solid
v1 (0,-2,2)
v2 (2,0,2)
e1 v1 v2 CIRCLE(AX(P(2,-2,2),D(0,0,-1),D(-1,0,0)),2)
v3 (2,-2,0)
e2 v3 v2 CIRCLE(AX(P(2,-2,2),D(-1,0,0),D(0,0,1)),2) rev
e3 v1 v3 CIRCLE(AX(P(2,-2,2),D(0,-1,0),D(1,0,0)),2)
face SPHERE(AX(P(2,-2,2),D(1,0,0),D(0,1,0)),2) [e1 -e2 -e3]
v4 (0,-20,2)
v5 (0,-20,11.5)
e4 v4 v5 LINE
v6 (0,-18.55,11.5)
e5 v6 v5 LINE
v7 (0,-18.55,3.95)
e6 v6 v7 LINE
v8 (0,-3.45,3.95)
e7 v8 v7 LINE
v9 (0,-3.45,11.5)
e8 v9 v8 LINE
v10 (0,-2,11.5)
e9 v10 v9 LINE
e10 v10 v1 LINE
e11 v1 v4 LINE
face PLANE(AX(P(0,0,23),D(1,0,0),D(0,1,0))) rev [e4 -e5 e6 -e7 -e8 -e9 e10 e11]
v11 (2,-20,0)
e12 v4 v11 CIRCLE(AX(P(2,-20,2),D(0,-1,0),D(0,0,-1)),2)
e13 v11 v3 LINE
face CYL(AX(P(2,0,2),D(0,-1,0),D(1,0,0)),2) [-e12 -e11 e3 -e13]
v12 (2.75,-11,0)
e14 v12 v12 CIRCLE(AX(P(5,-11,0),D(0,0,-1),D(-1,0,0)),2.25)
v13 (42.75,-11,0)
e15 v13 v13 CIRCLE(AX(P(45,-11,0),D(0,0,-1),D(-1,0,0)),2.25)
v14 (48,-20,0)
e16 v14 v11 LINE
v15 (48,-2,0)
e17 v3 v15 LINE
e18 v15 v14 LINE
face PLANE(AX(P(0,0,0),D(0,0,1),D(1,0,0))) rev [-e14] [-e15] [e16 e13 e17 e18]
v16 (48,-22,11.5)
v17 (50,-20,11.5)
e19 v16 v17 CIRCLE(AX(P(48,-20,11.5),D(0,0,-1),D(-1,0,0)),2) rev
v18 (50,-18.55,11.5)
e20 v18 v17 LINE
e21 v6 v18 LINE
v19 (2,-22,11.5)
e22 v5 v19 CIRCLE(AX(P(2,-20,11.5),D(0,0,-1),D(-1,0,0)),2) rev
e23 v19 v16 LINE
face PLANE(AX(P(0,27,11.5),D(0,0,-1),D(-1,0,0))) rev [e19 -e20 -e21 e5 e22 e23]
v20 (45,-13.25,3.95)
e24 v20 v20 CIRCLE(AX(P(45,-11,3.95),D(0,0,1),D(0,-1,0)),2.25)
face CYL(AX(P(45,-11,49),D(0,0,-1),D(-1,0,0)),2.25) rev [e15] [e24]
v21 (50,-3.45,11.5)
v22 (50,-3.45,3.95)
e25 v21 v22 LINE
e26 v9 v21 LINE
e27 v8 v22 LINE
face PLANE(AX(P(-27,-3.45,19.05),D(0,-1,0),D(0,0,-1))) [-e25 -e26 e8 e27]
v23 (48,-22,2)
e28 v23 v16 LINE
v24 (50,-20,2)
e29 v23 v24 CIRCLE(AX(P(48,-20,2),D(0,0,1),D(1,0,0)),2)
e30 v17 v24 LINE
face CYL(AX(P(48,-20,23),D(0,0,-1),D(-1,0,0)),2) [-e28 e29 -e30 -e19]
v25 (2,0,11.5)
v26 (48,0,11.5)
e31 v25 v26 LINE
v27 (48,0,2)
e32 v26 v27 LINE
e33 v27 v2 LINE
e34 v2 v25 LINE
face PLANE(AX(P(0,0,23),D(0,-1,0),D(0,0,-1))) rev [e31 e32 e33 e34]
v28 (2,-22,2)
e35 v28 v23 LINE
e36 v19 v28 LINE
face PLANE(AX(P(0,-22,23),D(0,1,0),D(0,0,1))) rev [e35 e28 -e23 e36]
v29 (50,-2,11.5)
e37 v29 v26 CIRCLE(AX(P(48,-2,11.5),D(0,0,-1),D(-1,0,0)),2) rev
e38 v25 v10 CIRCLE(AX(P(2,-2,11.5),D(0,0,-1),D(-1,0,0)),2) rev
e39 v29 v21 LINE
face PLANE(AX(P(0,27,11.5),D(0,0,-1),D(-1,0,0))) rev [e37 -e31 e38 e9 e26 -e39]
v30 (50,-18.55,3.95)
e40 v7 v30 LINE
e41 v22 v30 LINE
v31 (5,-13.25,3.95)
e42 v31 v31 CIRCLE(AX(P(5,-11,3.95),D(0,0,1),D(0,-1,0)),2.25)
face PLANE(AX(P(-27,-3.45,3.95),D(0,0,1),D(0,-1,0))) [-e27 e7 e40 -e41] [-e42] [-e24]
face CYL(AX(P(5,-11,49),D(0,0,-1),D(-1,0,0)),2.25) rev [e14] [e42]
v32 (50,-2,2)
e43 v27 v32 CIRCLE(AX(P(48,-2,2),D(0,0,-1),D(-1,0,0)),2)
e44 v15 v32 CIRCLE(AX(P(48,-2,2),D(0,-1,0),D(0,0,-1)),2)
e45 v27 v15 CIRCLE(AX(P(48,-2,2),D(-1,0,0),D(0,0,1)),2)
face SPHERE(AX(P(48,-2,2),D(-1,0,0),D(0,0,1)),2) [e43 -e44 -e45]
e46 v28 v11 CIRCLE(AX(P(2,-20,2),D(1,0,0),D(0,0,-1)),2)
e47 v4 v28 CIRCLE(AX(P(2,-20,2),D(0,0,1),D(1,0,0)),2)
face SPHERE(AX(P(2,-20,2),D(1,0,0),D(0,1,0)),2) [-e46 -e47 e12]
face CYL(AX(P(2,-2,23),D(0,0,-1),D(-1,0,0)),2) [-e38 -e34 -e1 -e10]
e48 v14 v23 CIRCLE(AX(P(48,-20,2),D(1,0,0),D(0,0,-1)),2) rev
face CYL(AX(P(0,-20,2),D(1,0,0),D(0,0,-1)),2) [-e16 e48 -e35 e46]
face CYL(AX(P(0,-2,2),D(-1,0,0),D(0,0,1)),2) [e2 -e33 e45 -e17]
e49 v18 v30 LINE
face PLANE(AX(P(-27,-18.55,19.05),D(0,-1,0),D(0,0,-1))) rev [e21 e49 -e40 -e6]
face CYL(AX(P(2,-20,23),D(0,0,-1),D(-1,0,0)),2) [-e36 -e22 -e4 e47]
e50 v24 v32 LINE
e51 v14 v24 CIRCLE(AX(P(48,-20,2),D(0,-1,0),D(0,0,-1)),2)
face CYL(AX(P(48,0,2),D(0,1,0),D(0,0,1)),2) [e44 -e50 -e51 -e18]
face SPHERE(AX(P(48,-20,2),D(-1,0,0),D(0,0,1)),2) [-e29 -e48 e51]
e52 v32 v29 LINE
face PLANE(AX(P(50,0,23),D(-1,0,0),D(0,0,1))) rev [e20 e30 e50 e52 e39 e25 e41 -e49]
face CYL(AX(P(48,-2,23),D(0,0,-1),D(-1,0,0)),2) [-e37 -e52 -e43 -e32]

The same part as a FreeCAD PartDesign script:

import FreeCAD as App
import Part
import Sketcher

V = App.Vector


def edges_at(feature, points):
    """Names of the edges that pass closest to the given points."""
    edges = feature.Shape.Edges
    near = lambda p: min(range(len(edges)), key=lambda i: edges[i].distToShape(Part.Vertex(*p))[0])
    return sorted({f"Edge{near(p) + 1}" for p in points})

doc = App.newDocument("Part")
body = doc.addObject("PartDesign::Body", "Body")

# Sketch on XY plane
sketch1 = body.newObject("Sketcher::SketchObject", "Sketch")
sketch1.AttachmentSupport = (doc.getObject("XY_Plane"), [""])
sketch1.MapMode = "FlatFace"
sketch1.addGeometry([
    Part.LineSegment(V(0, 0, 0), V(0, -22, 0)),
    Part.LineSegment(V(0, -22, 0), V(50, -22, 0)),
    Part.LineSegment(V(50, -22, 0), V(50, 0, 0)),
    Part.LineSegment(V(50, 0, 0), V(0, 0, 0)),
], False)
sketch1.addConstraint([
    Sketcher.Constraint("Coincident", 0, 2, 1, 1),
    Sketcher.Constraint("Coincident", 1, 2, 2, 1),
    Sketcher.Constraint("Coincident", 2, 2, 3, 1),
    Sketcher.Constraint("Coincident", 3, 2, 0, 1),
    Sketcher.Constraint("Vertical", 0),
    Sketcher.Constraint("Horizontal", 1),
    Sketcher.Constraint("Vertical", 2),
    Sketcher.Constraint("Horizontal", 3),
    Sketcher.Constraint("Coincident", 3, 2, -1, 1),
    Sketcher.Constraint("DistanceX", 1, 1, 1, 2, 50.0),
    Sketcher.Constraint("DistanceY", 0, 2, 0, 1, 22.0),
])
pad1 = body.newObject("PartDesign::Pad", "Pad")
pad1.Profile = sketch1
pad1.Length = 23

# Sketch on YZ plane
sketch2 = body.newObject("Sketcher::SketchObject", "Sketch001")
sketch2.AttachmentSupport = (doc.getObject("YZ_Plane"), [""])
sketch2.MapMode = "FlatFace"
sketch2.AttachmentOffset = App.Placement(V(0, 0, 50), App.Rotation())
sketch2.addGeometry([
    Part.LineSegment(V(-3, 19, 0), V(-19, 19, 0)),
    Part.LineSegment(V(-19, 19, 0), V(-19, 4, 0)),
    Part.LineSegment(V(-19, 4, 0), V(-3, 4, 0)),
    Part.LineSegment(V(-3, 4, 0), V(-3, 19, 0)),
], False)
sketch2.addConstraint([
    Sketcher.Constraint("Coincident", 0, 2, 1, 1),
    Sketcher.Constraint("Coincident", 1, 2, 2, 1),
    Sketcher.Constraint("Coincident", 2, 2, 3, 1),
    Sketcher.Constraint("Coincident", 3, 2, 0, 1),
    Sketcher.Constraint("Horizontal", 0),
    Sketcher.Constraint("Vertical", 1),
    Sketcher.Constraint("Horizontal", 2),
    Sketcher.Constraint("Vertical", 3),
    Sketcher.Constraint("Equal", 2, 1),
    Sketcher.Constraint("DistanceX", 0, 2, 0, 1, 15.1),
    Sketcher.Constraint("DistanceX", 0, 2, -1, 1, 18.55),
    Sketcher.Constraint("DistanceY", -1, 1, 0, 2, 19.05),
])
pocket1 = body.newObject("PartDesign::Pocket", "Pocket")
pocket1.Profile = sketch2
pocket1.Length = 77

# Sketch on XY plane
sketch3 = body.newObject("Sketcher::SketchObject", "Sketch002")
sketch3.AttachmentSupport = (doc.getObject("XY_Plane"), [""])
sketch3.MapMode = "FlatFace"
sketch3.addGeometry([
    Part.Circle(V(45, -11, 0), V(0, 0, 1), 2.2),
    Part.Circle(V(5, -11, 0), V(0, 0, 1), 2.2),
], False)
sketch3.addConstraint([
    Sketcher.Constraint("Equal", 0, 1),
    Sketcher.Constraint("Horizontal", 0, 3, 1, 3),
    Sketcher.Constraint("Diameter", 0, 4.5),
    Sketcher.Constraint("DistanceX", -1, 1, 0, 3, 45.0),
    Sketcher.Constraint("DistanceY", 0, 3, -1, 1, 11.0),
    Sketcher.Constraint("DistanceX", -1, 1, 1, 3, 5.0),
])
pocket2 = body.newObject("PartDesign::Pocket", "Pocket001")
pocket2.Profile = sketch3
pocket2.Length = 49
pocket2.Reversed = True

# Sketch on XZ plane
sketch4 = body.newObject("Sketcher::SketchObject", "Sketch003")
sketch4.AttachmentSupport = (doc.getObject("XZ_Plane"), [""])
sketch4.MapMode = "FlatFace"
sketch4.AttachmentOffset = App.Placement(V(0, 0, 22), App.Rotation())
sketch4.addGeometry([
    Part.LineSegment(V(0, 23, 0), V(0, 12, 0)),
    Part.LineSegment(V(0, 12, 0), V(50, 12, 0)),
    Part.LineSegment(V(50, 12, 0), V(50, 23, 0)),
    Part.LineSegment(V(50, 23, 0), V(0, 23, 0)),
], False)
sketch4.addConstraint([
    Sketcher.Constraint("Coincident", 0, 2, 1, 1),
    Sketcher.Constraint("Coincident", 1, 2, 2, 1),
    Sketcher.Constraint("Coincident", 2, 2, 3, 1),
    Sketcher.Constraint("Coincident", 3, 2, 0, 1),
    Sketcher.Constraint("Vertical", 0),
    Sketcher.Constraint("Horizontal", 1),
    Sketcher.Constraint("Vertical", 2),
    Sketcher.Constraint("Horizontal", 3),
    Sketcher.Constraint("PointOnObject", 0, 2, -2),
    Sketcher.Constraint("DistanceX", 1, 1, 1, 2, 50.0),
    Sketcher.Constraint("DistanceY", 0, 2, 0, 1, 11.5),
    Sketcher.Constraint("DistanceY", -1, 1, 2, 2, 23.0),
])
pocket3 = body.newObject("PartDesign::Pocket", "Pocket002")
pocket3.Profile = sketch4
pocket3.Length = 49
doc.recompute()

fillet = body.newObject("PartDesign::Fillet", "Fillet")
fillet.Base = (pocket3, edges_at(pocket3, [(25, 0, 0), (25, -22, 0)]))
fillet.Radius = 2
doc.recompute()

fillet2 = body.newObject("PartDesign::Fillet", "Fillet001")
fillet2.Base = (fillet, edges_at(fillet, [
    (0, 0, 6.75),
    (50, 0, 6.75),
    (50, -22, 6.75),
    (0, -22, 6.75),
    (0, -11, 0),
    (0, -21.414, 0.586),
    (0, -0.586, 0.586),
    (50, -11, 0),
    (50, -21.414, 0.586),
    (50, -0.586, 0.586),
]))
fillet2.Radius = 2

doc.recompute()
